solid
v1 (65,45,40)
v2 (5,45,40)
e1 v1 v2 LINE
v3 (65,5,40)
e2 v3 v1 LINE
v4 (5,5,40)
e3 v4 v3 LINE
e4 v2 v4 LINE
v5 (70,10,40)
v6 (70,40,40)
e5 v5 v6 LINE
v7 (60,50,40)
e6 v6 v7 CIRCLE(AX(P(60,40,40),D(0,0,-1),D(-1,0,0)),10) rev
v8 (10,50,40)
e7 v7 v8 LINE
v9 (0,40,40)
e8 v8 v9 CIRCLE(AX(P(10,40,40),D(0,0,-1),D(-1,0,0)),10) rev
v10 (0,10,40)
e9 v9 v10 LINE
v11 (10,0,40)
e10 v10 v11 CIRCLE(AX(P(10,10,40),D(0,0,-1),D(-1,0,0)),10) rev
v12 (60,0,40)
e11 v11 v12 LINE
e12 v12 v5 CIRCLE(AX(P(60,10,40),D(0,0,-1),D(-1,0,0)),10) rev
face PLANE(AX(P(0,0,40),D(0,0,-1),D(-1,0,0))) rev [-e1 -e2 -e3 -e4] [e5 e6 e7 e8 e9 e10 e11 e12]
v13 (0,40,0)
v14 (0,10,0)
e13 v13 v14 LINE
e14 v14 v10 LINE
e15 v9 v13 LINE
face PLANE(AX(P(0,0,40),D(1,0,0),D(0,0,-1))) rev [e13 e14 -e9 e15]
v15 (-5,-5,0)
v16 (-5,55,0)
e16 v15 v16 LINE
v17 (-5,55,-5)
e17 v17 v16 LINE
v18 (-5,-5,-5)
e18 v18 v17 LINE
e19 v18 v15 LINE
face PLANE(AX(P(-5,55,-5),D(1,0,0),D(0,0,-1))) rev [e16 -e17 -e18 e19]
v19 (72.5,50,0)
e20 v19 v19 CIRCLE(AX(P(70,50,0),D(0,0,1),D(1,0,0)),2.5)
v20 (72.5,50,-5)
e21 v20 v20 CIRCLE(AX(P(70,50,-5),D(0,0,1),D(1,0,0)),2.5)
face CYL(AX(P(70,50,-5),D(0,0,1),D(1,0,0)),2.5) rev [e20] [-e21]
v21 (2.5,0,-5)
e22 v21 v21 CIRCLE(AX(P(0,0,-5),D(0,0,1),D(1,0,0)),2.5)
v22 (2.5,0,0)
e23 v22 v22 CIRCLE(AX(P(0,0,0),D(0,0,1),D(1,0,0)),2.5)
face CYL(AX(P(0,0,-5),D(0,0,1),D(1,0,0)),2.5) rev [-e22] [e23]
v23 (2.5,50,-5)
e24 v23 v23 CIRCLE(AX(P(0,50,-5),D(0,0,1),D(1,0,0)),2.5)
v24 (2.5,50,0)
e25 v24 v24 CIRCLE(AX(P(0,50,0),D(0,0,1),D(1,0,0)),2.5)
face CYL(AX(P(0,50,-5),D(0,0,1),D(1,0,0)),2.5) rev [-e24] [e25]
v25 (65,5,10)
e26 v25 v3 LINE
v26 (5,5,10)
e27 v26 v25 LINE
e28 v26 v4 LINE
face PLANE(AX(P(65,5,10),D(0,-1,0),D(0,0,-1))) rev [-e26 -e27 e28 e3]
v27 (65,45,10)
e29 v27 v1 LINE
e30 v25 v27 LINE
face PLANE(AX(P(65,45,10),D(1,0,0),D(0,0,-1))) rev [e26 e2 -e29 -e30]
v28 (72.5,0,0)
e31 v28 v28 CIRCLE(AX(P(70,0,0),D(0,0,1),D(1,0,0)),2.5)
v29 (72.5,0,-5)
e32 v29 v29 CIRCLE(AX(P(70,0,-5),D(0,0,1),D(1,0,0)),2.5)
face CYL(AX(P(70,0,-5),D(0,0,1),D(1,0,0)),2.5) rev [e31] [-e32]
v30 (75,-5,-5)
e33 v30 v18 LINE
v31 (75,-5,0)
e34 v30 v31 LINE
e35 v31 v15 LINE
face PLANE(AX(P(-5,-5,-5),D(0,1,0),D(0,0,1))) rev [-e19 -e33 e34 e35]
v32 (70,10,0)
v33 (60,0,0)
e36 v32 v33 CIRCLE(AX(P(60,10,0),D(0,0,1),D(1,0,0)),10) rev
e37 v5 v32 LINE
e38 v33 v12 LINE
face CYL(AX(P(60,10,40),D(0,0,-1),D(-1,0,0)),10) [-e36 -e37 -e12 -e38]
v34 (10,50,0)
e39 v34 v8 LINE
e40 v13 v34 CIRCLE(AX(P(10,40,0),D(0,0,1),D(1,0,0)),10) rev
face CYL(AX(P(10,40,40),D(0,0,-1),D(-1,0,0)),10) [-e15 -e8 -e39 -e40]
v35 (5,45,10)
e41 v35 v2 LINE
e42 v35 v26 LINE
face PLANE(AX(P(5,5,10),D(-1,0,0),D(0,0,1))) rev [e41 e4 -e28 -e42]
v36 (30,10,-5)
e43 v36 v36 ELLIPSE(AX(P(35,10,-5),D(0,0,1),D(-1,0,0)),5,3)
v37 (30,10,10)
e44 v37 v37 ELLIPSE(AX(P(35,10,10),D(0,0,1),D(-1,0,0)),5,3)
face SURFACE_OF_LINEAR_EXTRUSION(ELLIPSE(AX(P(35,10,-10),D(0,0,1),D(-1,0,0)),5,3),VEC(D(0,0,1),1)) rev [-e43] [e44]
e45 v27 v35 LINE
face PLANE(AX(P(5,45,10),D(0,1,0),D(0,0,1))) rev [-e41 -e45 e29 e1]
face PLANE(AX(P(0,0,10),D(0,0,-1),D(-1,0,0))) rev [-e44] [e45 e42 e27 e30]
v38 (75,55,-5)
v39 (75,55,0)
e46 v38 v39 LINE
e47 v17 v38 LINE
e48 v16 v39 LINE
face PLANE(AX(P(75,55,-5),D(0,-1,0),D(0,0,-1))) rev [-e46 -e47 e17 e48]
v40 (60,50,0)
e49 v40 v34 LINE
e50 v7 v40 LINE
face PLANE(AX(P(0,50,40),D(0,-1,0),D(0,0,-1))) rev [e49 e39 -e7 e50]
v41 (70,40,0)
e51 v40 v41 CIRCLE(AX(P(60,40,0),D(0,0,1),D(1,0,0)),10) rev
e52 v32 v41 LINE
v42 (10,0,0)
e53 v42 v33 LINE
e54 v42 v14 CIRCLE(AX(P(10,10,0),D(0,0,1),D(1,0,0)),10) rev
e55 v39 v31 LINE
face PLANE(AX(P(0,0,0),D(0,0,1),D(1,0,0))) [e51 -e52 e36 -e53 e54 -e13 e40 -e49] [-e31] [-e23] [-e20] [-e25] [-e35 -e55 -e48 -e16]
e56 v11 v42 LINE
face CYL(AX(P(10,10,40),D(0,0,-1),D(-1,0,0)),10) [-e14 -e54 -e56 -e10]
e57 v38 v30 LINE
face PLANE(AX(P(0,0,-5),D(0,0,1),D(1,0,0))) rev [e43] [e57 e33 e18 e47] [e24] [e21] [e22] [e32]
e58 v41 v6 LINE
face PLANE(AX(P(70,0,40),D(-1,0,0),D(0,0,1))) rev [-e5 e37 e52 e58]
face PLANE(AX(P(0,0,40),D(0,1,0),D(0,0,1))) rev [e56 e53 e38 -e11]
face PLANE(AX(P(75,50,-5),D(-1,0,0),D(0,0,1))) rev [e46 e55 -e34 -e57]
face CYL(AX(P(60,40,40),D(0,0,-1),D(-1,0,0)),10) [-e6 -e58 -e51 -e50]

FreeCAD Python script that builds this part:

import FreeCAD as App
import Part
import Sketcher
Q = App.Units.Quantity


def edges_at(feature, points):
    """Names of the edges that pass closest to the given points."""
    edges = feature.Shape.Edges
    near = lambda p: min(range(len(edges)), key=lambda i: edges[i].distToShape(Part.Vertex(*p))[0])
    return sorted({f"Edge{near(p) + 1}" for p in points})


def add_polygon(sketch, points):
    """Adds a closed chain of lines whose ends are joined by coincident constraints."""
    first, n = sketch.GeometryCount, len(points)
    for a, b in zip(points, points[1:] + points[:1]):
        sketch.addGeometry(Part.LineSegment(App.Vector(*a, 0), App.Vector(*b, 0)), False)
    for i in range(n):
        sketch.addConstraint(Sketcher.Constraint("Coincident", first + i, 2, first + (i + 1) % n, 1))

doc = App.newDocument("Part")
body = doc.addObject("PartDesign::Body", "Body")

# Sketch on XY plane
sketch1 = body.newObject("Sketcher::SketchObject", "Sketch")
sketch1.AttachmentSupport = (doc.getObject("XY_Plane"), [""])
sketch1.MapMode = "FlatFace"
add_polygon(sketch1, [(0, 50), (0, 0), (70, 0), (70, 50)])  # lines 0-3
sketch1.addConstraint([
    Sketcher.Constraint("Vertical", 0),
    Sketcher.Constraint("Horizontal", 1),
    Sketcher.Constraint("Vertical", 2),
    Sketcher.Constraint("Horizontal", 3),
    Sketcher.Constraint("Coincident", 0, 2, -1, 1),
    Sketcher.Constraint("DistanceX", 1, 1, 1, 2, Q("70 mm")),
    Sketcher.Constraint("DistanceY", 0, 2, 0, 1, Q("50 mm")),
])
pad1 = body.newObject("PartDesign::Pad", "Pad")
pad1.Profile = sketch1
pad1.Length = 40

# Sketch on XY plane
sketch2 = body.newObject("Sketcher::SketchObject", "Sketch001")
sketch2.AttachmentSupport = (doc.getObject("XY_Plane"), [""])
sketch2.MapMode = "FlatFace"
sketch2.AttachmentOffset = App.Placement(App.Vector(0, 0, 40), App.Rotation())
add_polygon(sketch2, [(5, 45), (5, 5), (65, 5), (65, 45)])  # lines 0-3
sketch2.addConstraint([
    Sketcher.Constraint("Vertical", 0),
    Sketcher.Constraint("Horizontal", 1),
    Sketcher.Constraint("Vertical", 2),
    Sketcher.Constraint("Horizontal", 3),
    Sketcher.Constraint("DistanceX", 1, 1, 1, 2, Q("60 mm")),
    Sketcher.Constraint("DistanceY", 0, 2, 0, 1, Q("40 mm")),
    Sketcher.Constraint("DistanceX", -1, 1, 0, 2, Q("5 mm")),
    Sketcher.Constraint("DistanceY", -1, 1, 0, 2, Q("5 mm")),
])
pocket1 = body.newObject("PartDesign::Pocket", "Pocket")
pocket1.Profile = sketch2
pocket1.Length = 30

# Sketch on XY plane
sketch3 = body.newObject("Sketcher::SketchObject", "Sketch002")
sketch3.AttachmentSupport = (doc.getObject("XY_Plane"), [""])
sketch3.MapMode = "FlatFace"
add_polygon(sketch3, [(75, 55), (75, -5), (-5, -5), (-5, 55)])  # lines 0-3
sketch3.addConstraint([
    Sketcher.Constraint("Vertical", 0),
    Sketcher.Constraint("Horizontal", 1),
    Sketcher.Constraint("Vertical", 2),
    Sketcher.Constraint("Horizontal", 3),
    Sketcher.Constraint("DistanceX", 1, 2, 1, 1, Q("80 mm")),
    Sketcher.Constraint("DistanceY", 0, 2, 0, 1, Q("60 mm")),
    Sketcher.Constraint("DistanceX", -1, 1, 0, 2, Q("75 mm")),
    Sketcher.Constraint("DistanceY", 0, 2, -1, 1, Q("5 mm")),
])
pad2 = body.newObject("PartDesign::Pad", "Pad001")
pad2.Profile = sketch3
pad2.Length = 5
pad2.Reversed = True
doc.recompute()

fillet = body.newObject("PartDesign::Fillet", "Fillet")
fillet.Base = (pad2, edges_at(pad2, [
    (0, 50, 20),
    (70, 50, 20),
    (70, 0, 20),
    (0, 0, 20),
]))
fillet.Radius = 10

# Sketch on XY plane
sketch4 = body.newObject("Sketcher::SketchObject", "Sketch003")
sketch4.AttachmentSupport = (doc.getObject("XY_Plane"), [""])
sketch4.MapMode = "FlatFace"
sketch4.addGeometry([
    Part.Circle(App.Vector(0, 50, 0), App.Vector(0, 0, 1), 2.5),
    Part.Circle(App.Vector(70, 50, 0), App.Vector(0, 0, 1), 2.5),
    Part.Circle(App.Vector(70, 0, 0), App.Vector(0, 0, 1), 2.5),
    Part.Circle(App.Vector(0, 0, 0), App.Vector(0, 0, 1), 2.5),
], False)
sketch4.addConstraint([
    Sketcher.Constraint("Coincident", 3, 3, -1, 1),
    Sketcher.Constraint("Equal", 0, 1),
    Sketcher.Constraint("Equal", 1, 2),
    Sketcher.Constraint("Equal", 2, 3),
    Sketcher.Constraint("PointOnObject", 0, 3, -2),
    Sketcher.Constraint("PointOnObject", 2, 3, -1),
    Sketcher.Constraint("Horizontal", 0, 3, 1, 3),
    Sketcher.Constraint("Vertical", 1, 3, 2, 3),
    Sketcher.Constraint("Diameter", 0, Q("5 mm")),
    Sketcher.Constraint("DistanceY", -1, 1, 0, 3, Q("50 mm")),
    Sketcher.Constraint("DistanceX", -1, 1, 1, 3, Q("70 mm")),
])
pocket2 = body.newObject("PartDesign::Pocket", "Pocket001")
pocket2.Profile = sketch4
pocket2.Length = 5

# Sketch on XY plane
sketch5 = body.newObject("Sketcher::SketchObject", "Sketch004")
sketch5.AttachmentSupport = (doc.getObject("XY_Plane"), [""])
sketch5.MapMode = "FlatFace"
sketch5.AttachmentOffset = App.Placement(App.Vector(0, 0, 10), App.Rotation())
sketch5.addGeometry(Part.Ellipse(App.Vector(30, 10, 0), App.Vector(35, 7, 0), App.Vector(35, 10, 0)), False)
sketch5.addConstraint(Sketcher.Constraint("Block", 0))
pocket3 = body.newObject("PartDesign::Pocket", "Pocket002")
pocket3.Profile = sketch5
pocket3.Length = 20

doc.recompute()
